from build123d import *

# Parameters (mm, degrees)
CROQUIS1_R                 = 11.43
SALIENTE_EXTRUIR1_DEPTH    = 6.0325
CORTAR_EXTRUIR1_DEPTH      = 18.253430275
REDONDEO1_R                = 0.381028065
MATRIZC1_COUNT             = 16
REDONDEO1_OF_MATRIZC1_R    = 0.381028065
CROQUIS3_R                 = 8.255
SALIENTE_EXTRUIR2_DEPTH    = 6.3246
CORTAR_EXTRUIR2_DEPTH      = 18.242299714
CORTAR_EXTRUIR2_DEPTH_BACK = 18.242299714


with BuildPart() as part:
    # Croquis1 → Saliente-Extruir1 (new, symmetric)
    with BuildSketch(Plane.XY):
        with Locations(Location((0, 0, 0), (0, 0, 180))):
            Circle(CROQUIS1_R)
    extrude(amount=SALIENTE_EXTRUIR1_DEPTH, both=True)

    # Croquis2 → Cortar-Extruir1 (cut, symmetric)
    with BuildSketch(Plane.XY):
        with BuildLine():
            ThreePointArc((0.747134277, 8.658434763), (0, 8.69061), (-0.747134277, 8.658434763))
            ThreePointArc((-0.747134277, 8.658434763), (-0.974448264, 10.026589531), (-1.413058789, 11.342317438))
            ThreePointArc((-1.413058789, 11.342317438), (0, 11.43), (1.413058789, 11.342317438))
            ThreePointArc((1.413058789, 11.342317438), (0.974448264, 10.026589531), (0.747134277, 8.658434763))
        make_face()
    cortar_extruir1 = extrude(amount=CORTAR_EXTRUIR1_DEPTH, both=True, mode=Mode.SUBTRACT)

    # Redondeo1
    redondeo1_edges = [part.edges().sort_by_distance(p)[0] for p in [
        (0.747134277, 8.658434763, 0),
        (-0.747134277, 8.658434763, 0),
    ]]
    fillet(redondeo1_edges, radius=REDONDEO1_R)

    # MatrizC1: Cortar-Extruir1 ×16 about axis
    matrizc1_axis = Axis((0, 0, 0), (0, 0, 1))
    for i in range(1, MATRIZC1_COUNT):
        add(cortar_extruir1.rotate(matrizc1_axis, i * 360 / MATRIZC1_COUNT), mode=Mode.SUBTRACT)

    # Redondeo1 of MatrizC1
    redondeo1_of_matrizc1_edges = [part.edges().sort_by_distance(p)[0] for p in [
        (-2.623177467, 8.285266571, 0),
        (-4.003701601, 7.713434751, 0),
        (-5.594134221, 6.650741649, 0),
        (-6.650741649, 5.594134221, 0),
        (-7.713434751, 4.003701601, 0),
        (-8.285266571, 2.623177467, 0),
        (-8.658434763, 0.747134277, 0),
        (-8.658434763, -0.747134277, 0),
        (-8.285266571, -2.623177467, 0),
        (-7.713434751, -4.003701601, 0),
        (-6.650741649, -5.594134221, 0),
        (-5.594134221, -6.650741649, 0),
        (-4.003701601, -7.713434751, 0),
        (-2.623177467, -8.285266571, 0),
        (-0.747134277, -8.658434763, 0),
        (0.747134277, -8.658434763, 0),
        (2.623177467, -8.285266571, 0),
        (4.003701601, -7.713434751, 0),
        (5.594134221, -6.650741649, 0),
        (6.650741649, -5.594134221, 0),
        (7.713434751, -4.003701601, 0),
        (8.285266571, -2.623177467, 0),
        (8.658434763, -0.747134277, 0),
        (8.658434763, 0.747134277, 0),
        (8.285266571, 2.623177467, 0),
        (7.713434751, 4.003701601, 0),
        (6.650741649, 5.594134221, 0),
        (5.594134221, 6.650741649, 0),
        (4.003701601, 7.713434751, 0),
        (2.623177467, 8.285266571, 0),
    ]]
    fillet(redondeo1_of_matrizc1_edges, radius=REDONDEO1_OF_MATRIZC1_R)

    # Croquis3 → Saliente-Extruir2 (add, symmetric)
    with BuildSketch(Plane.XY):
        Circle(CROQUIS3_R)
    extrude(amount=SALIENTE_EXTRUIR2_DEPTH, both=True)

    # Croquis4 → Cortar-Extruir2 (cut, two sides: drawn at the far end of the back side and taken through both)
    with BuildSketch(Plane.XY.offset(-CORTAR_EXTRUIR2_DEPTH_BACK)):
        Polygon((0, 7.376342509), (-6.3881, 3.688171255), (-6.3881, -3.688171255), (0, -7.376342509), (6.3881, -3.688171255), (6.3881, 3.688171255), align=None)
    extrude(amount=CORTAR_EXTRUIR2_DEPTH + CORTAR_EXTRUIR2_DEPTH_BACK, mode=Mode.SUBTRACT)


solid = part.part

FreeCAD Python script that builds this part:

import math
import FreeCAD as App
import Part
import Sketcher
Q = App.Units.Quantity


def edges_at(feature, points):
    """Names of the edges that pass closest to the given points."""
    edges = feature.Shape.Edges
    near = lambda p: min(range(len(edges)), key=lambda i: edges[i].distToShape(Part.Vertex(*p))[0])
    return sorted({f"Edge{near(p) + 1}" for p in points})

doc = App.newDocument("Part")
body = doc.addObject("PartDesign::Body", "Body")

# Sketch on XY plane
sketch1 = body.newObject("Sketcher::SketchObject", "Sketch")
sketch1.AttachmentSupport = (doc.getObject("XY_Plane"), [""])
sketch1.MapMode = "FlatFace"
sketch1.addGeometry(Part.Circle(App.Vector(0, 0, 0), App.Vector(0, 0, 1), 11), False)
sketch1.addConstraint([
    Sketcher.Constraint("Coincident", 0, 3, -1, 1),
    Sketcher.Constraint("Diameter", 0, Q("0.9 in")),
])
pad1 = body.newObject("PartDesign::Pad", "Pad")
pad1.Profile = sketch1
pad1.Length = Q("0.475 in")
pad1.Midplane = True

# Sketch on XY plane
sketch2 = body.newObject("Sketcher::SketchObject", "Sketch001")
sketch2.AttachmentSupport = (doc.getObject("XY_Plane"), [""])
sketch2.MapMode = "FlatFace"
sketch2.addGeometry([
    Part.ArcOfCircle(Part.Circle(App.Vector(0, 0, 0), App.Vector(0, 0, 1), 8.7), math.radians(85.07), math.radians(94.93)),
    Part.ArcOfCircle(Part.Circle(App.Vector(9.5, 7.9, 0), App.Vector(0, 0, 1), 8.8), math.radians(157.06), math.radians(175.07)),
    Part.ArcOfCircle(Part.Circle(App.Vector(0, 0, 0), App.Vector(0, 0, 1), 11.4), math.radians(82.9), math.radians(97.1)),
    Part.ArcOfCircle(Part.Circle(App.Vector(-9.5, 7.9, 0), App.Vector(0, 0, 1), 8.8), math.radians(4.93), math.radians(22.94)),
], False)
sketch2.addConstraint([
    Sketcher.Constraint("Coincident", 0, 1, 1, 2),
    Sketcher.Constraint("Coincident", 1, 1, 2, 1),
    Sketcher.Constraint("Coincident", 2, 2, 3, 2),
    Sketcher.Constraint("Coincident", 3, 1, 0, 2),
    Sketcher.Constraint("Coincident", 0, 3, -1, 1),
    Sketcher.Constraint("Coincident", 2, 3, -1, 1),
    Sketcher.Constraint("Equal", 1, 3),
    Sketcher.Constraint("Symmetric", 1, 3, 3, 3, -2),
    Sketcher.Constraint("Radius", 2, Q("0.45 in")),
    Sketcher.Constraint("Radius", 1, Q("8.8355 mm")),
    Sketcher.Constraint("Radius", 0, Q("8.69061 mm")),
    Sketcher.Constraint("DistanceX", -1, 1, 1, 1, Q("1.413059 mm")),
    Sketcher.Constraint("DistanceX", 0, 1, 1, 3, Q("8.802789 mm")),
])
pocket1 = body.newObject("PartDesign::Pocket", "Pocket")
pocket1.Profile = sketch2
pocket1.Length = 36.506861
pocket1.Midplane = True
doc.recompute()

fillet = body.newObject("PartDesign::Fillet", "Fillet")
fillet.Base = (pocket1, edges_at(pocket1, [(0.747, 8.658, 0), (-0.747, 8.658, 0)]))
fillet.Radius = 0.381028
doc.recompute()

polarpattern = body.newObject("PartDesign::PolarPattern", "PolarPattern")
polarpattern.Originals = [pocket1]
polarpattern.Axis = (doc.getObject("Z_Axis"), [""])
polarpattern.Angle = 360
polarpattern.Occurrences = 16
body.Tip = polarpattern
doc.recompute()

fillet2 = body.newObject("PartDesign::Fillet", "Fillet001")
fillet2.Base = (polarpattern, edges_at(polarpattern, [
    (-2.623, 8.285, 0),
    (-4.004, 7.713, 0),
    (-5.594, 6.651, 0),
    (-6.651, 5.594, 0),
    (-7.713, 4.004, 0),
    (-8.285, 2.623, 0),
    (-8.658, 0.747, 0),
    (-8.658, -0.747, 0),
    (-8.285, -2.623, 0),
    (-7.713, -4.004, 0),
    (-6.651, -5.594, 0),
    (-5.594, -6.651, 0),
    (-4.004, -7.713, 0),
    (-2.623, -8.285, 0),
    (-0.747, -8.658, 0),
    (0.747, -8.658, 0),
    (2.623, -8.285, 0),
    (4.004, -7.713, 0),
    (5.594, -6.651, 0),
    (6.651, -5.594, 0),
    (7.713, -4.004, 0),
    (8.285, -2.623, 0),
    (8.658, -0.747, 0),
    (8.658, 0.747, 0),
    (8.285, 2.623, 0),
    (7.713, 4.004, 0),
    (6.651, 5.594, 0),
    (5.594, 6.651, 0),
    (4.004, 7.713, 0),
    (2.623, 8.285, 0),
]))
fillet2.Radius = 0.381028

# Sketch on XY plane
sketch3 = body.newObject("Sketcher::SketchObject", "Sketch002")
sketch3.AttachmentSupport = (doc.getObject("XY_Plane"), [""])
sketch3.MapMode = "FlatFace"
sketch3.addGeometry(Part.Circle(App.Vector(0, 0, 0), App.Vector(0, 0, 1), 8), False)
sketch3.addConstraint([
    Sketcher.Constraint("Coincident", 0, 3, -1, 1),
    Sketcher.Constraint("Diameter", 0, Q("0.65 in")),
])
pad2 = body.newObject("PartDesign::Pad", "Pad001")
pad2.Profile = sketch3
pad2.Length = Q("0.498 in")
pad2.Midplane = True

# Sketch on XY plane
sketch4 = body.newObject("Sketcher::SketchObject", "Sketch003")
sketch4.AttachmentSupport = (doc.getObject("XY_Plane"), [""])
sketch4.MapMode = "FlatFace"
sketch4.addGeometry([
    Part.LineSegment(App.Vector(0, 7, 0), App.Vector(-6, 4, 0)),  # 0
    Part.LineSegment(App.Vector(-6, 4, 0), App.Vector(-6, -4, 0)),  # 1
    Part.LineSegment(App.Vector(-6, -4, 0), App.Vector(0, -7, 0)),  # 2
    Part.LineSegment(App.Vector(0, -7, 0), App.Vector(6, -4, 0)),  # 3
    Part.LineSegment(App.Vector(6, -4, 0), App.Vector(6, 4, 0)),  # 4
    Part.LineSegment(App.Vector(6, 4, 0), App.Vector(0, 7, 0)),  # 5
], False)
sketch4.addConstraint([
    Sketcher.Constraint("Coincident", 0, 2, 1, 1),
    Sketcher.Constraint("Coincident", 1, 2, 2, 1),
    Sketcher.Constraint("Coincident", 2, 2, 3, 1),
    Sketcher.Constraint("Coincident", 3, 2, 4, 1),
    Sketcher.Constraint("Coincident", 4, 2, 5, 1),
    Sketcher.Constraint("Coincident", 5, 2, 0, 1),
    Sketcher.Constraint("Vertical", 1),
    Sketcher.Constraint("Vertical", 4),
    Sketcher.Constraint("Symmetric", 0, 2, 3, 2, -1, 1),
    Sketcher.Constraint("Symmetric", 2, 2, 5, 2, -1, 1),
    Sketcher.Constraint("PointOnObject", 2, 2, -2),
    Sketcher.Constraint("Parallel", 2, 5),
    Sketcher.Constraint("Horizontal", 1, 2, 3, 2),
    Sketcher.Constraint("Angle", 0, Q("-150 deg")),
    Sketcher.Constraint("DistanceX", 1, 2, 3, 2, Q("0.503 in")),
    Sketcher.Constraint("DistanceY", 1, 2, 1, 1, Q("7.376343 mm")),
])
pocket2 = body.newObject("PartDesign::Pocket", "Pocket001")
pocket2.Profile = sketch4
pocket2.Type = "ThroughAll"
pocket2.Midplane = True

doc.recompute()
